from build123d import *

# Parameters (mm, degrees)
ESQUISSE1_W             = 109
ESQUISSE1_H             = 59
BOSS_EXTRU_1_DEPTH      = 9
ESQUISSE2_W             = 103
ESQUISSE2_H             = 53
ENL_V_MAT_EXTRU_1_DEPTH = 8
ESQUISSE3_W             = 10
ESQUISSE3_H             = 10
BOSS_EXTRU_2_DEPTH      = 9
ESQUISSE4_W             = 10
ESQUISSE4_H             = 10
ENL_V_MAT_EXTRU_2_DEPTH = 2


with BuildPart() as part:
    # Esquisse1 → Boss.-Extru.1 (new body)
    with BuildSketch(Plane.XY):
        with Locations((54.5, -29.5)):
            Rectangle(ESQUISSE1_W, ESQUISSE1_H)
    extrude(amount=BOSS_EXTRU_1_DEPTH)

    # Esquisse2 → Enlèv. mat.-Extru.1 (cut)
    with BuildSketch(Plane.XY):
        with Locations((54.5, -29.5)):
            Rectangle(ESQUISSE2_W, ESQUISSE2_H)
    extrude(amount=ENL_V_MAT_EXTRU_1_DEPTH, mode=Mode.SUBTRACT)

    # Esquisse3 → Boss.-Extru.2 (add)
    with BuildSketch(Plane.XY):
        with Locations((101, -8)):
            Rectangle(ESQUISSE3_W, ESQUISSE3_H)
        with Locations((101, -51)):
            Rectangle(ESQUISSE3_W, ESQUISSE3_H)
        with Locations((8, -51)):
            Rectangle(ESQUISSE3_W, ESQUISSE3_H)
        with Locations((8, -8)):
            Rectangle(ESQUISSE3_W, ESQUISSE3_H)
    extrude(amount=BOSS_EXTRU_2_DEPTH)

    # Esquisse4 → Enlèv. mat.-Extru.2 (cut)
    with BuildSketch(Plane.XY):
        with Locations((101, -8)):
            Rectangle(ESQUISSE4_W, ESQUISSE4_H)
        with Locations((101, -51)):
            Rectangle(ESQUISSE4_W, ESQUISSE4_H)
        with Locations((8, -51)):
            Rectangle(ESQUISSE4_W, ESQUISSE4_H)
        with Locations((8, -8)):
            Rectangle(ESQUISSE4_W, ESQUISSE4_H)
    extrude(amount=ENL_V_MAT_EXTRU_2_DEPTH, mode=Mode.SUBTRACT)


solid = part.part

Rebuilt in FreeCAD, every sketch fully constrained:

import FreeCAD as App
import Part
import Sketcher

V = App.Vector

doc = App.newDocument("Part")
params = doc.addObject("Spreadsheet::Sheet", "Params")
for row, (alias, value) in enumerate([
    ("sketch1_width", "109 mm"),
    ("sketch1_height", "59 mm"),
    ("pad1_length", "9 mm"),
    ("sketch2_width", "103 mm"),
    ("sketch2_height", "53 mm"),
    ("pocket1_length", "8 mm"),
    ("sketch3_width", "10 mm"),
    ("pad2_length", "9 mm"),
    ("sketch4_width", "10 mm"),
    ("pocket2_length", "2 mm"),
], start=1):
    params.set(f"A{row}", alias)
    params.set(f"B{row}", "=" + value)
    params.setAlias(f"B{row}", alias)

body = doc.addObject("PartDesign::Body", "Body")

# Sketch on XY plane
sketch1 = body.newObject("Sketcher::SketchObject", "Sketch")
sketch1.AttachmentSupport = (doc.getObject("XY_Plane"), [""])
sketch1.MapMode = "FlatFace"
sketch1.addGeometry([
    Part.LineSegment(V(0, 0, 0), V(0, -59, 0)),
    Part.LineSegment(V(0, -59, 0), V(109, -59, 0)),
    Part.LineSegment(V(109, -59, 0), V(109, 0, 0)),
    Part.LineSegment(V(109, 0, 0), V(0, 0, 0)),
], False)
sketch1.addConstraint([
    Sketcher.Constraint("Coincident", 0, 2, 1, 1),
    Sketcher.Constraint("Coincident", 1, 2, 2, 1),
    Sketcher.Constraint("Coincident", 2, 2, 3, 1),
    Sketcher.Constraint("Coincident", 3, 2, 0, 1),
    Sketcher.Constraint("Vertical", 0),
    Sketcher.Constraint("Horizontal", 1),
    Sketcher.Constraint("Vertical", 2),
    Sketcher.Constraint("Horizontal", 3),
    Sketcher.Constraint("Coincident", 3, 2, -1, 1),
    Sketcher.Constraint("DistanceX", 1, 1, 1, 2, 109.0),
    Sketcher.Constraint("DistanceY", 0, 2, 0, 1, 59.0),
])
sketch1.setExpression("Constraints[9]", "Params.sketch1_width")
sketch1.setExpression("Constraints[10]", "Params.sketch1_height")
pad1 = body.newObject("PartDesign::Pad", "Pad")
pad1.Profile = sketch1
pad1.setExpression("Length", "Params.pad1_length")

# Sketch on XY plane
sketch2 = body.newObject("Sketcher::SketchObject", "Sketch001")
sketch2.AttachmentSupport = (doc.getObject("XY_Plane"), [""])
sketch2.MapMode = "FlatFace"
sketch2.addGeometry([
    Part.LineSegment(V(3, -3, 0), V(3, -56, 0)),
    Part.LineSegment(V(3, -56, 0), V(106, -56, 0)),
    Part.LineSegment(V(106, -56, 0), V(106, -3, 0)),
    Part.LineSegment(V(106, -3, 0), V(3, -3, 0)),
], False)
sketch2.addConstraint([
    Sketcher.Constraint("Coincident", 0, 2, 1, 1),
    Sketcher.Constraint("Coincident", 1, 2, 2, 1),
    Sketcher.Constraint("Coincident", 2, 2, 3, 1),
    Sketcher.Constraint("Coincident", 3, 2, 0, 1),
    Sketcher.Constraint("Vertical", 0),
    Sketcher.Constraint("Horizontal", 1),
    Sketcher.Constraint("Vertical", 2),
    Sketcher.Constraint("Horizontal", 3),
    Sketcher.Constraint("DistanceX", 1, 1, 1, 2, 103.0),
    Sketcher.Constraint("DistanceY", 0, 2, 0, 1, 53.0),
    Sketcher.Constraint("DistanceX", -1, 1, 0, 2, 3.0),
    Sketcher.Constraint("DistanceY", 0, 2, -1, 1, 56.0),
])
sketch2.setExpression("Constraints[8]", "Params.sketch2_width")
sketch2.setExpression("Constraints[9]", "Params.sketch2_height")
pocket1 = body.newObject("PartDesign::Pocket", "Pocket")
pocket1.Profile = sketch2
pocket1.setExpression("Length", "Params.pocket1_length")
pocket1.Reversed = True

# Sketch on XY plane
sketch3 = body.newObject("Sketcher::SketchObject", "Sketch002")
sketch3.AttachmentSupport = (doc.getObject("XY_Plane"), [""])
sketch3.MapMode = "FlatFace"
sketch3.addGeometry([
    Part.LineSegment(V(96, -3, 0), V(96, -13, 0)),  # 0
    Part.LineSegment(V(96, -13, 0), V(106, -13, 0)),  # 1
    Part.LineSegment(V(106, -13, 0), V(106, -3, 0)),  # 2
    Part.LineSegment(V(106, -3, 0), V(96, -3, 0)),  # 3
    Part.LineSegment(V(96, -46, 0), V(96, -56, 0)),  # 4
    Part.LineSegment(V(96, -56, 0), V(106, -56, 0)),  # 5
    Part.LineSegment(V(106, -56, 0), V(106, -46, 0)),  # 6
    Part.LineSegment(V(106, -46, 0), V(96, -46, 0)),  # 7
    Part.LineSegment(V(3, -46, 0), V(3, -56, 0)),  # 8
    Part.LineSegment(V(3, -56, 0), V(13, -56, 0)),  # 9
    Part.LineSegment(V(13, -56, 0), V(13, -46, 0)),  # 10
    Part.LineSegment(V(13, -46, 0), V(3, -46, 0)),  # 11
    Part.LineSegment(V(3, -3, 0), V(3, -13, 0)),  # 12
    Part.LineSegment(V(3, -13, 0), V(13, -13, 0)),  # 13
    Part.LineSegment(V(13, -13, 0), V(13, -3, 0)),  # 14
    Part.LineSegment(V(13, -3, 0), V(3, -3, 0)),  # 15
], False)
sketch3.addConstraint([
    Sketcher.Constraint("Coincident", 0, 2, 1, 1),
    Sketcher.Constraint("Coincident", 1, 2, 2, 1),
    Sketcher.Constraint("Coincident", 2, 2, 3, 1),
    Sketcher.Constraint("Coincident", 3, 2, 0, 1),
    Sketcher.Constraint("Coincident", 4, 2, 5, 1),
    Sketcher.Constraint("Coincident", 5, 2, 6, 1),
    Sketcher.Constraint("Coincident", 6, 2, 7, 1),
    Sketcher.Constraint("Coincident", 7, 2, 4, 1),
    Sketcher.Constraint("Coincident", 8, 2, 9, 1),
    Sketcher.Constraint("Coincident", 9, 2, 10, 1),
    Sketcher.Constraint("Coincident", 10, 2, 11, 1),
    Sketcher.Constraint("Coincident", 11, 2, 8, 1),
    Sketcher.Constraint("Coincident", 12, 2, 13, 1),
    Sketcher.Constraint("Coincident", 13, 2, 14, 1),
    Sketcher.Constraint("Coincident", 14, 2, 15, 1),
    Sketcher.Constraint("Coincident", 15, 2, 12, 1),
    Sketcher.Constraint("Vertical", 0),
    Sketcher.Constraint("Horizontal", 1),
    Sketcher.Constraint("Vertical", 2),
    Sketcher.Constraint("Horizontal", 3),
    Sketcher.Constraint("Vertical", 4),
    Sketcher.Constraint("Horizontal", 5),
    Sketcher.Constraint("Vertical", 6),
    Sketcher.Constraint("Horizontal", 7),
    Sketcher.Constraint("Vertical", 8),
    Sketcher.Constraint("Horizontal", 9),
    Sketcher.Constraint("Vertical", 10),
    Sketcher.Constraint("Horizontal", 11),
    Sketcher.Constraint("Vertical", 12),
    Sketcher.Constraint("Horizontal", 13),
    Sketcher.Constraint("Vertical", 14),
    Sketcher.Constraint("Horizontal", 15),
    Sketcher.Constraint("Horizontal", 5, 2, 8, 2),
    Sketcher.Constraint("Horizontal", 7, 2, 10, 2),
    Sketcher.Constraint("Horizontal", 1, 2, 12, 2),
    Sketcher.Constraint("Horizontal", 3, 2, 14, 2),
    Sketcher.Constraint("Vertical", 3, 2, 4, 2),
    Sketcher.Constraint("Vertical", 2, 2, 5, 2),
    Sketcher.Constraint("Vertical", 11, 2, 12, 2),
    Sketcher.Constraint("Vertical", 10, 2, 13, 2),
    Sketcher.Constraint("Equal", 7, 9),
    Sketcher.Constraint("Equal", 15, 0),
    Sketcher.Constraint("Equal", 2, 4),
    Sketcher.Constraint("DistanceX", 1, 1, 1, 2, 10.0),
    Sketcher.Constraint("DistanceX", -1, 1, 0, 2, 96.0),
    Sketcher.Constraint("DistanceY", 0, 2, -1, 1, 13.0),
    Sketcher.Constraint("DistanceY", 4, 2, -1, 1, 56.0),
    Sketcher.Constraint("DistanceX", -1, 1, 8, 2, 3.0),
])
sketch3.setExpression("Constraints[43]", "Params.sketch3_width")
pad2 = body.newObject("PartDesign::Pad", "Pad001")
pad2.Profile = sketch3
pad2.setExpression("Length", "Params.pad2_length")

# Sketch on XY plane
sketch4 = body.newObject("Sketcher::SketchObject", "Sketch003")
sketch4.AttachmentSupport = (doc.getObject("XY_Plane"), [""])
sketch4.MapMode = "FlatFace"
sketch4.addGeometry([
    Part.LineSegment(V(96, -3, 0), V(96, -13, 0)),  # 0
    Part.LineSegment(V(96, -13, 0), V(106, -13, 0)),  # 1
    Part.LineSegment(V(106, -13, 0), V(106, -3, 0)),  # 2
    Part.LineSegment(V(106, -3, 0), V(96, -3, 0)),  # 3
    Part.LineSegment(V(96, -46, 0), V(96, -56, 0)),  # 4
    Part.LineSegment(V(96, -56, 0), V(106, -56, 0)),  # 5
    Part.LineSegment(V(106, -56, 0), V(106, -46, 0)),  # 6
    Part.LineSegment(V(106, -46, 0), V(96, -46, 0)),  # 7
    Part.LineSegment(V(3, -46, 0), V(3, -56, 0)),  # 8
    Part.LineSegment(V(3, -56, 0), V(13, -56, 0)),  # 9
    Part.LineSegment(V(13, -56, 0), V(13, -46, 0)),  # 10
    Part.LineSegment(V(13, -46, 0), V(3, -46, 0)),  # 11
    Part.LineSegment(V(3, -3, 0), V(3, -13, 0)),  # 12
    Part.LineSegment(V(3, -13, 0), V(13, -13, 0)),  # 13
    Part.LineSegment(V(13, -13, 0), V(13, -3, 0)),  # 14
    Part.LineSegment(V(13, -3, 0), V(3, -3, 0)),  # 15
], False)
sketch4.addConstraint([
    Sketcher.Constraint("Coincident", 0, 2, 1, 1),
    Sketcher.Constraint("Coincident", 1, 2, 2, 1),
    Sketcher.Constraint("Coincident", 2, 2, 3, 1),
    Sketcher.Constraint("Coincident", 3, 2, 0, 1),
    Sketcher.Constraint("Coincident", 4, 2, 5, 1),
    Sketcher.Constraint("Coincident", 5, 2, 6, 1),
    Sketcher.Constraint("Coincident", 6, 2, 7, 1),
    Sketcher.Constraint("Coincident", 7, 2, 4, 1),
    Sketcher.Constraint("Coincident", 8, 2, 9, 1),
    Sketcher.Constraint("Coincident", 9, 2, 10, 1),
    Sketcher.Constraint("Coincident", 10, 2, 11, 1),
    Sketcher.Constraint("Coincident", 11, 2, 8, 1),
    Sketcher.Constraint("Coincident", 12, 2, 13, 1),
    Sketcher.Constraint("Coincident", 13, 2, 14, 1),
    Sketcher.Constraint("Coincident", 14, 2, 15, 1),
    Sketcher.Constraint("Coincident", 15, 2, 12, 1),
    Sketcher.Constraint("Vertical", 0),
    Sketcher.Constraint("Horizontal", 1),
    Sketcher.Constraint("Vertical", 2),
    Sketcher.Constraint("Horizontal", 3),
    Sketcher.Constraint("Vertical", 4),
    Sketcher.Constraint("Horizontal", 5),
    Sketcher.Constraint("Vertical", 6),
    Sketcher.Constraint("Horizontal", 7),
    Sketcher.Constraint("Vertical", 8),
    Sketcher.Constraint("Horizontal", 9),
    Sketcher.Constraint("Vertical", 10),
    Sketcher.Constraint("Horizontal", 11),
    Sketcher.Constraint("Vertical", 12),
    Sketcher.Constraint("Horizontal", 13),
    Sketcher.Constraint("Vertical", 14),
    Sketcher.Constraint("Horizontal", 15),
    Sketcher.Constraint("Horizontal", 5, 2, 8, 2),
    Sketcher.Constraint("Horizontal", 7, 2, 10, 2),
    Sketcher.Constraint("Horizontal", 1, 2, 12, 2),
    Sketcher.Constraint("Horizontal", 3, 2, 14, 2),
    Sketcher.Constraint("Vertical", 3, 2, 4, 2),
    Sketcher.Constraint("Vertical", 2, 2, 5, 2),
    Sketcher.Constraint("Vertical", 11, 2, 12, 2),
    Sketcher.Constraint("Vertical", 10, 2, 13, 2),
    Sketcher.Constraint("Equal", 7, 9),
    Sketcher.Constraint("Equal", 15, 0),
    Sketcher.Constraint("Equal", 2, 4),
    Sketcher.Constraint("DistanceX", 1, 1, 1, 2, 10.0),
    Sketcher.Constraint("DistanceX", -1, 1, 0, 2, 96.0),
    Sketcher.Constraint("DistanceY", 0, 2, -1, 1, 13.0),
    Sketcher.Constraint("DistanceY", 4, 2, -1, 1, 56.0),
    Sketcher.Constraint("DistanceX", -1, 1, 8, 2, 3.0),
])
sketch4.setExpression("Constraints[43]", "Params.sketch4_width")
pocket2 = body.newObject("PartDesign::Pocket", "Pocket001")
pocket2.Profile = sketch4
pocket2.setExpression("Length", "Params.pocket2_length")
pocket2.Reversed = True

doc.recompute()
